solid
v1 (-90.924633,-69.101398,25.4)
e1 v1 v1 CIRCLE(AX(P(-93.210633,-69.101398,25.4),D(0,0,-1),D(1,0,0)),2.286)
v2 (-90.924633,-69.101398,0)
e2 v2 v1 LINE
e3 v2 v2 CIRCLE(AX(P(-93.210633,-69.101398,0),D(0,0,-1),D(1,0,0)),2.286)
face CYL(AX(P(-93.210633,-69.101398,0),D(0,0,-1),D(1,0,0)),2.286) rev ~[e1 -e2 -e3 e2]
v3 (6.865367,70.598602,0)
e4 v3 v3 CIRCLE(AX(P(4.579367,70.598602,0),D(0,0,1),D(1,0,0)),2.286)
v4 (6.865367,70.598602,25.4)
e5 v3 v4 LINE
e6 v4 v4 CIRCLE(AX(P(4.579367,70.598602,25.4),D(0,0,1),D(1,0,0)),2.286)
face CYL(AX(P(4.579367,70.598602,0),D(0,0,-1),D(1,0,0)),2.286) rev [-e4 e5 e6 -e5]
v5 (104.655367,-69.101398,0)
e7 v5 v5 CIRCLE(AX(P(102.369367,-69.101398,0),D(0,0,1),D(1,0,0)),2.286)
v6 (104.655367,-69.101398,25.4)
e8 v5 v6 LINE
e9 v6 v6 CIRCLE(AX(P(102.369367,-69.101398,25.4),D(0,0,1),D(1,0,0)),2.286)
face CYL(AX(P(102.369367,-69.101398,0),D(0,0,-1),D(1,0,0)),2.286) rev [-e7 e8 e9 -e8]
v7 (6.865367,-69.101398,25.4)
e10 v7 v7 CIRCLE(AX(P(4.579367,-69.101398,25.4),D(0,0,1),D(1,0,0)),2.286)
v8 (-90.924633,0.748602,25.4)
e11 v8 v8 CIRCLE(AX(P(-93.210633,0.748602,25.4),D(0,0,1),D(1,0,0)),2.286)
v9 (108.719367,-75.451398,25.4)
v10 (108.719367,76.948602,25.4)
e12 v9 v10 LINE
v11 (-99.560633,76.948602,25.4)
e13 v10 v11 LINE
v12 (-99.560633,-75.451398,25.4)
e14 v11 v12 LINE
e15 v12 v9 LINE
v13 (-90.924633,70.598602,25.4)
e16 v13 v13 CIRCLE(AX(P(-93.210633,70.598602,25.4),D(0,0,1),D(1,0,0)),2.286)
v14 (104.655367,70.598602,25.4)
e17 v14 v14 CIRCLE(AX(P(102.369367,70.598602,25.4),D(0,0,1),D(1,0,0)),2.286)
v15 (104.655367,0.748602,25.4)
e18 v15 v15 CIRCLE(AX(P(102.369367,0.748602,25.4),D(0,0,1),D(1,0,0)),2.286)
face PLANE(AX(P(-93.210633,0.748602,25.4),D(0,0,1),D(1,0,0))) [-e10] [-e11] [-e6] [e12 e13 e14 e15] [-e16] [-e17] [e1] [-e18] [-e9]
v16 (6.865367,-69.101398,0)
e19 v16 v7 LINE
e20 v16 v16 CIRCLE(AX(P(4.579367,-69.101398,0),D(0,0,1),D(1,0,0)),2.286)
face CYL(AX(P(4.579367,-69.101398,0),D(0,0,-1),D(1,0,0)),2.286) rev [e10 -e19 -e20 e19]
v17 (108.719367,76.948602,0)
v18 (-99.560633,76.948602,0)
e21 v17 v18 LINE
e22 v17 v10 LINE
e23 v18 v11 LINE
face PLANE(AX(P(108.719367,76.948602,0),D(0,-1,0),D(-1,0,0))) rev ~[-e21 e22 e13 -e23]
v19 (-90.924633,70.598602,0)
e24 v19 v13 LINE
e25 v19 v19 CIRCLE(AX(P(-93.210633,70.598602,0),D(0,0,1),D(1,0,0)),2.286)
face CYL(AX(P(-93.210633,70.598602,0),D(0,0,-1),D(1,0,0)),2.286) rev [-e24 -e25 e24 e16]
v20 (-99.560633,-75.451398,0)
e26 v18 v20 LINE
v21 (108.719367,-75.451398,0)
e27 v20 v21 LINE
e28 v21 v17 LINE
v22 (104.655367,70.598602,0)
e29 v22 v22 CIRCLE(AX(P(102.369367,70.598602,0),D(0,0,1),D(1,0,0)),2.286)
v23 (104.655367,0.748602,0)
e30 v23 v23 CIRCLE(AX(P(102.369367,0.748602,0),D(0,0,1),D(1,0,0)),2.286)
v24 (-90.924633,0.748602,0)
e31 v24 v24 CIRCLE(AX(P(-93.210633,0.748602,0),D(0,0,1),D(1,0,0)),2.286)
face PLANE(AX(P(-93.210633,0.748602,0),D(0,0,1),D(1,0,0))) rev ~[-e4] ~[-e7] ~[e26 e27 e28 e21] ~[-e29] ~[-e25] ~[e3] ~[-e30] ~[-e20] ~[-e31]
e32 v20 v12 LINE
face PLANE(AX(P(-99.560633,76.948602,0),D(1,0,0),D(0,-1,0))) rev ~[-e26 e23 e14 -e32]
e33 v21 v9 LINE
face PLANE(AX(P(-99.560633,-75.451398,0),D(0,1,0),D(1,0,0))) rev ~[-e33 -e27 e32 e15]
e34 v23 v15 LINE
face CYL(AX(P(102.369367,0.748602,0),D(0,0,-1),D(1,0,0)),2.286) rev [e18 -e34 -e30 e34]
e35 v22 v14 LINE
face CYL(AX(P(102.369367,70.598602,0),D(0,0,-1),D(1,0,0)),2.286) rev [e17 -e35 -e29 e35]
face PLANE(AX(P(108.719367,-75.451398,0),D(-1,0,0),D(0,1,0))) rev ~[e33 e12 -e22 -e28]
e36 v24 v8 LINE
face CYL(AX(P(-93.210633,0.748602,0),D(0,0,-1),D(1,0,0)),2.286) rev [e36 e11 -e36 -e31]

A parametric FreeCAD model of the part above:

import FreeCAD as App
import Part
import Sketcher
Q = App.Units.Quantity


def add_polygon(sketch, points):
    """Adds a closed chain of lines whose ends are joined by coincident constraints."""
    first, n = sketch.GeometryCount, len(points)
    for a, b in zip(points, points[1:] + points[:1]):
        sketch.addGeometry(Part.LineSegment(App.Vector(*a, 0), App.Vector(*b, 0)), False)
    for i in range(n):
        sketch.addConstraint(Sketcher.Constraint("Coincident", first + i, 2, first + (i + 1) % n, 1))

doc = App.newDocument("Part")
params = doc.addObject("Spreadsheet::Sheet", "Params")
for row, (alias, value) in enumerate([
    ("sketch1_diameter", "0.18 in"),
    ("sketch1_height", "6 in"),
    ("sketch1_width", "8.2 in"),
    ("pad1_length", "1 in"),
], start=1):
    params.set(f"A{row}", alias)
    params.set(f"B{row}", "=" + value)
    params.setAlias(f"B{row}", alias)

body = doc.addObject("PartDesign::Body", "Body")

sketch1 = doc.addObject("Sketcher::SketchObject", "Sketch")
body.addObject(sketch1)
sketch1.AttachmentSupport = (doc.XY_Plane, [""])
sketch1.MapMode = "FlatFace"
add_polygon(sketch1, [(-99.560633, -75.451398), (108.719367, -75.451398), (108.719367, 76.948602), (-99.560633, 76.948602)])
sketch1.addGeometry(Part.Circle(App.Vector(-93.210633, -69.101398, 0), App.Vector(0, 0, 1), 2.286), False)
sketch1.addGeometry(Part.Circle(App.Vector(4.579367, -69.101398, 0), App.Vector(0, 0, 1), 2.286), False)
sketch1.addGeometry(Part.Circle(App.Vector(102.369367, -69.101398, 0), App.Vector(0, 0, 1), 2.286), False)
sketch1.addGeometry(Part.Circle(App.Vector(-93.210633, 0.748602, 0), App.Vector(0, 0, 1), 2.286), False)
sketch1.addGeometry(Part.Circle(App.Vector(-93.210633, 70.598602, 0), App.Vector(0, 0, 1), 2.286), False)
sketch1.addGeometry(Part.Circle(App.Vector(102.369367, 0.748602, 0), App.Vector(0, 0, 1), 2.286), False)
sketch1.addGeometry(Part.Circle(App.Vector(4.579367, 70.598602, 0), App.Vector(0, 0, 1), 2.286), False)
sketch1.addGeometry(Part.Circle(App.Vector(102.369367, 70.598602, 0), App.Vector(0, 0, 1), 2.286), False)
sketch1.addConstraint([
    Sketcher.Constraint("Horizontal", 0),
    Sketcher.Constraint("Vertical", 1),
    Sketcher.Constraint("Horizontal", 2),
    Sketcher.Constraint("Vertical", 3),
    Sketcher.Constraint("Equal", 4, 5),
    Sketcher.Constraint("Equal", 5, 6),
    Sketcher.Constraint("Equal", 6, 7),
    Sketcher.Constraint("Equal", 7, 8),
    Sketcher.Constraint("Equal", 8, 9),
    Sketcher.Constraint("Equal", 9, 10),
    Sketcher.Constraint("Equal", 10, 11),
    Sketcher.Constraint("Horizontal", 4, 3, 5, 3),
    Sketcher.Constraint("Horizontal", 5, 3, 6, 3),
    Sketcher.Constraint("Horizontal", 7, 3, 9, 3),
    Sketcher.Constraint("Horizontal", 8, 3, 10, 3),
    Sketcher.Constraint("Horizontal", 10, 3, 11, 3),
    Sketcher.Constraint("Vertical", 4, 3, 7, 3),
    Sketcher.Constraint("Vertical", 7, 3, 8, 3),
    Sketcher.Constraint("Vertical", 6, 3, 9, 3),
    Sketcher.Constraint("Vertical", 5, 3, 10, 3),
    Sketcher.Constraint("Vertical", 9, 3, 11, 3),
    Sketcher.Constraint("Diameter", 4, Q("0.18 in")),
    Sketcher.Constraint("DistanceY", 1, 1, 1, 2, Q("6 in")),
    Sketcher.Constraint("DistanceX", 0, 1, 0, 2, Q("8.2 in")),
    Sketcher.Constraint("DistanceY", 0, 2, 9, 3, Q("3 in")),
    Sketcher.Constraint("DistanceX", 4, 3, 6, 3, Q("7.7 in")),
    Sketcher.Constraint("DistanceY", 4, 3, 8, 3, Q("5.5 in")),
    Sketcher.Constraint("DistanceX", 5, 3, 0, 2, Q("4.1 in")),
    Sketcher.Constraint("DistanceX", 4, 3, 5, 3, Q("3.85 in")),
    Sketcher.Constraint("DistanceY", 4, 3, 7, 3, Q("2.75 in")),
    Sketcher.Constraint("DistanceY", 4, 3, -1, 1, 69.101398),
    Sketcher.Constraint("DistanceX", 4, 3, -1, 1, 93.210633),
])
sketch1.setExpression("Constraints[25]", "Params.sketch1_diameter")
sketch1.setExpression("Constraints[26]", "Params.sketch1_height")
sketch1.setExpression("Constraints[27]", "Params.sketch1_width")
pad1 = doc.addObject("PartDesign::Pad", "Pad")
body.addObject(pad1)
pad1.Profile = sketch1
pad1.setExpression("Length", "Params.pad1_length")

doc.recompute()
